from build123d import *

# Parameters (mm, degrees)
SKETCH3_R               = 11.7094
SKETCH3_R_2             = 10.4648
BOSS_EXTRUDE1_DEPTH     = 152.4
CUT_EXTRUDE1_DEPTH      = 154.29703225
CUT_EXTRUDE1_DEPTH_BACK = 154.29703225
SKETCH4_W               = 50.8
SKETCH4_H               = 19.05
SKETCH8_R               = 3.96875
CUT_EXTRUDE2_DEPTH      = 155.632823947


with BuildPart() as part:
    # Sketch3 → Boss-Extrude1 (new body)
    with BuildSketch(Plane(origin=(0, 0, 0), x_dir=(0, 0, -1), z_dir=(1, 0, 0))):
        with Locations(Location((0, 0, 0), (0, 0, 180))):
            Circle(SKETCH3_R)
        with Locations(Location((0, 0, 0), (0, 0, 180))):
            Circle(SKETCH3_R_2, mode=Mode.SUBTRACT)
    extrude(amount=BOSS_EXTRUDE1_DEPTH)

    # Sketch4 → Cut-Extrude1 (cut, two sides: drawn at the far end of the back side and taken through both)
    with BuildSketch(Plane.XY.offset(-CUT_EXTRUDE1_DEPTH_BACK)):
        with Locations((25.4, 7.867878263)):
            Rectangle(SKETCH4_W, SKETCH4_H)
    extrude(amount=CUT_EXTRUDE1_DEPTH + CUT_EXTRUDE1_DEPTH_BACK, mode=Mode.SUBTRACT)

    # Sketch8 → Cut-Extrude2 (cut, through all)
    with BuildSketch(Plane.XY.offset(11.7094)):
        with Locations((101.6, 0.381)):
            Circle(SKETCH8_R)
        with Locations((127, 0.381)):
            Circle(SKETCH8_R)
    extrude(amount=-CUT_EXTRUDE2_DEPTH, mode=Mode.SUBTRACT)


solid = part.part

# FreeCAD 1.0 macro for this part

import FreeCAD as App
import Part
import Sketcher
from FreeCAD import Vector
Q = App.Units.Quantity


def add_polygon(sketch, points):
    """Adds a closed chain of lines whose ends are joined by coincident constraints."""
    first, n = sketch.GeometryCount, len(points)
    for a, b in zip(points, points[1:] + points[:1]):
        sketch.addGeometry(Part.LineSegment(App.Vector(*a, 0), App.Vector(*b, 0)), False)
    for i in range(n):
        sketch.addConstraint(Sketcher.Constraint("Coincident", first + i, 2, first + (i + 1) % n, 1))

doc = App.newDocument("Part")
params = doc.addObject("Spreadsheet::Sheet", "Params")
for row, (alias, value) in enumerate([
    ("sketch1_diameter", "0.922 in"),
    ("sketch1_diameter2", "0.824 in"),
    ("pad1_length", "6 in"),
    ("sketch2_width", "2 in"),
    ("sketch2_height", "0.75 in"),
    ("sketch3_diameter", "0.3125 in"),
], start=1):
    params.set(f"A{row}", alias)
    params.set(f"B{row}", "=" + value)
    params.setAlias(f"B{row}", alias)

body = doc.addObject("PartDesign::Body", "Body")

# Sketch on YZ plane
sketch1 = body.newObject("Sketcher::SketchObject", "Sketch")
sketch1.AttachmentSupport = (doc.getObject("YZ_Plane"), [""])
sketch1.MapMode = "FlatFace"
sketch1.addGeometry([
    Part.Circle(Vector(0, 0, 0), Vector(0, 0, 1), 12),
    Part.Circle(Vector(0, 0, 0), Vector(0, 0, 1), 10),
], False)
sketch1.addConstraint([
    Sketcher.Constraint("Coincident", 0, 3, -1, 1),
    Sketcher.Constraint("Coincident", 1, 3, -1, 1),
    Sketcher.Constraint("Diameter", 0, Q("0.922 in")),
    Sketcher.Constraint("Diameter", 1, Q("0.824 in")),
])
sketch1.setExpression("Constraints[2]", "Params.sketch1_diameter")
sketch1.setExpression("Constraints[3]", "Params.sketch1_diameter2")
pad1 = body.newObject("PartDesign::Pad", "Pad")
pad1.Profile = sketch1
pad1.setExpression("Length", "Params.pad1_length")

# Sketch on XY plane
sketch2 = body.newObject("Sketcher::SketchObject", "Sketch001")
sketch2.AttachmentSupport = (doc.getObject("XY_Plane"), [""])
sketch2.MapMode = "FlatFace"
add_polygon(sketch2, [(0, 17), (0, -2), (51, -2), (51, 17)])  # lines 0-3
sketch2.addConstraint([
    Sketcher.Constraint("Vertical", 0),
    Sketcher.Constraint("Horizontal", 1),
    Sketcher.Constraint("Vertical", 2),
    Sketcher.Constraint("Horizontal", 3),
    Sketcher.Constraint("PointOnObject", 0, 2, -2),
    Sketcher.Constraint("DistanceX", 1, 1, 1, 2, Q("2 in")),
    Sketcher.Constraint("DistanceY", 0, 2, 0, 1, Q("0.75 in")),
    Sketcher.Constraint("DistanceY", 0, 2, -1, 1, 1.657122),
])
sketch2.setExpression("Constraints[9]", "Params.sketch2_width")
sketch2.setExpression("Constraints[10]", "Params.sketch2_height")
pocket1 = body.newObject("PartDesign::Pocket", "Pocket")
pocket1.Profile = sketch2
pocket1.Type = "ThroughAll"
pocket1.Midplane = True

# Sketch on XY plane
sketch3 = body.newObject("Sketcher::SketchObject", "Sketch002")
sketch3.AttachmentSupport = (doc.getObject("XY_Plane"), [""])
sketch3.MapMode = "FlatFace"
sketch3.AttachmentOffset = App.Placement(Vector(0, 0, 0.461 * 25.4), App.Rotation())
sketch3.addGeometry([
    Part.Circle(Vector(101.6, 0.4, 0), Vector(0, 0, 1), 4),
    Part.Circle(Vector(127, 0.4, 0), Vector(0, 0, 1), 4),
], False)
sketch3.addConstraint([
    Sketcher.Constraint("Equal", 0, 1),
    Sketcher.Constraint("Horizontal", 0, 3, 1, 3),
    Sketcher.Constraint("Diameter", 0, Q("0.3125 in")),
    Sketcher.Constraint("DistanceX", -1, 1, 0, 3, Q("4 in")),
    Sketcher.Constraint("DistanceX", -1, 1, 1, 3, Q("5 in")),
    Sketcher.Constraint("DistanceY", -1, 1, 0, 3, Q("0.015 in")),
])
sketch3.setExpression("Constraints[2]", "Params.sketch3_diameter")
pocket2 = body.newObject("PartDesign::Pocket", "Pocket001")
pocket2.Profile = sketch3
pocket2.Type = "ThroughAll"

doc.recompute()
